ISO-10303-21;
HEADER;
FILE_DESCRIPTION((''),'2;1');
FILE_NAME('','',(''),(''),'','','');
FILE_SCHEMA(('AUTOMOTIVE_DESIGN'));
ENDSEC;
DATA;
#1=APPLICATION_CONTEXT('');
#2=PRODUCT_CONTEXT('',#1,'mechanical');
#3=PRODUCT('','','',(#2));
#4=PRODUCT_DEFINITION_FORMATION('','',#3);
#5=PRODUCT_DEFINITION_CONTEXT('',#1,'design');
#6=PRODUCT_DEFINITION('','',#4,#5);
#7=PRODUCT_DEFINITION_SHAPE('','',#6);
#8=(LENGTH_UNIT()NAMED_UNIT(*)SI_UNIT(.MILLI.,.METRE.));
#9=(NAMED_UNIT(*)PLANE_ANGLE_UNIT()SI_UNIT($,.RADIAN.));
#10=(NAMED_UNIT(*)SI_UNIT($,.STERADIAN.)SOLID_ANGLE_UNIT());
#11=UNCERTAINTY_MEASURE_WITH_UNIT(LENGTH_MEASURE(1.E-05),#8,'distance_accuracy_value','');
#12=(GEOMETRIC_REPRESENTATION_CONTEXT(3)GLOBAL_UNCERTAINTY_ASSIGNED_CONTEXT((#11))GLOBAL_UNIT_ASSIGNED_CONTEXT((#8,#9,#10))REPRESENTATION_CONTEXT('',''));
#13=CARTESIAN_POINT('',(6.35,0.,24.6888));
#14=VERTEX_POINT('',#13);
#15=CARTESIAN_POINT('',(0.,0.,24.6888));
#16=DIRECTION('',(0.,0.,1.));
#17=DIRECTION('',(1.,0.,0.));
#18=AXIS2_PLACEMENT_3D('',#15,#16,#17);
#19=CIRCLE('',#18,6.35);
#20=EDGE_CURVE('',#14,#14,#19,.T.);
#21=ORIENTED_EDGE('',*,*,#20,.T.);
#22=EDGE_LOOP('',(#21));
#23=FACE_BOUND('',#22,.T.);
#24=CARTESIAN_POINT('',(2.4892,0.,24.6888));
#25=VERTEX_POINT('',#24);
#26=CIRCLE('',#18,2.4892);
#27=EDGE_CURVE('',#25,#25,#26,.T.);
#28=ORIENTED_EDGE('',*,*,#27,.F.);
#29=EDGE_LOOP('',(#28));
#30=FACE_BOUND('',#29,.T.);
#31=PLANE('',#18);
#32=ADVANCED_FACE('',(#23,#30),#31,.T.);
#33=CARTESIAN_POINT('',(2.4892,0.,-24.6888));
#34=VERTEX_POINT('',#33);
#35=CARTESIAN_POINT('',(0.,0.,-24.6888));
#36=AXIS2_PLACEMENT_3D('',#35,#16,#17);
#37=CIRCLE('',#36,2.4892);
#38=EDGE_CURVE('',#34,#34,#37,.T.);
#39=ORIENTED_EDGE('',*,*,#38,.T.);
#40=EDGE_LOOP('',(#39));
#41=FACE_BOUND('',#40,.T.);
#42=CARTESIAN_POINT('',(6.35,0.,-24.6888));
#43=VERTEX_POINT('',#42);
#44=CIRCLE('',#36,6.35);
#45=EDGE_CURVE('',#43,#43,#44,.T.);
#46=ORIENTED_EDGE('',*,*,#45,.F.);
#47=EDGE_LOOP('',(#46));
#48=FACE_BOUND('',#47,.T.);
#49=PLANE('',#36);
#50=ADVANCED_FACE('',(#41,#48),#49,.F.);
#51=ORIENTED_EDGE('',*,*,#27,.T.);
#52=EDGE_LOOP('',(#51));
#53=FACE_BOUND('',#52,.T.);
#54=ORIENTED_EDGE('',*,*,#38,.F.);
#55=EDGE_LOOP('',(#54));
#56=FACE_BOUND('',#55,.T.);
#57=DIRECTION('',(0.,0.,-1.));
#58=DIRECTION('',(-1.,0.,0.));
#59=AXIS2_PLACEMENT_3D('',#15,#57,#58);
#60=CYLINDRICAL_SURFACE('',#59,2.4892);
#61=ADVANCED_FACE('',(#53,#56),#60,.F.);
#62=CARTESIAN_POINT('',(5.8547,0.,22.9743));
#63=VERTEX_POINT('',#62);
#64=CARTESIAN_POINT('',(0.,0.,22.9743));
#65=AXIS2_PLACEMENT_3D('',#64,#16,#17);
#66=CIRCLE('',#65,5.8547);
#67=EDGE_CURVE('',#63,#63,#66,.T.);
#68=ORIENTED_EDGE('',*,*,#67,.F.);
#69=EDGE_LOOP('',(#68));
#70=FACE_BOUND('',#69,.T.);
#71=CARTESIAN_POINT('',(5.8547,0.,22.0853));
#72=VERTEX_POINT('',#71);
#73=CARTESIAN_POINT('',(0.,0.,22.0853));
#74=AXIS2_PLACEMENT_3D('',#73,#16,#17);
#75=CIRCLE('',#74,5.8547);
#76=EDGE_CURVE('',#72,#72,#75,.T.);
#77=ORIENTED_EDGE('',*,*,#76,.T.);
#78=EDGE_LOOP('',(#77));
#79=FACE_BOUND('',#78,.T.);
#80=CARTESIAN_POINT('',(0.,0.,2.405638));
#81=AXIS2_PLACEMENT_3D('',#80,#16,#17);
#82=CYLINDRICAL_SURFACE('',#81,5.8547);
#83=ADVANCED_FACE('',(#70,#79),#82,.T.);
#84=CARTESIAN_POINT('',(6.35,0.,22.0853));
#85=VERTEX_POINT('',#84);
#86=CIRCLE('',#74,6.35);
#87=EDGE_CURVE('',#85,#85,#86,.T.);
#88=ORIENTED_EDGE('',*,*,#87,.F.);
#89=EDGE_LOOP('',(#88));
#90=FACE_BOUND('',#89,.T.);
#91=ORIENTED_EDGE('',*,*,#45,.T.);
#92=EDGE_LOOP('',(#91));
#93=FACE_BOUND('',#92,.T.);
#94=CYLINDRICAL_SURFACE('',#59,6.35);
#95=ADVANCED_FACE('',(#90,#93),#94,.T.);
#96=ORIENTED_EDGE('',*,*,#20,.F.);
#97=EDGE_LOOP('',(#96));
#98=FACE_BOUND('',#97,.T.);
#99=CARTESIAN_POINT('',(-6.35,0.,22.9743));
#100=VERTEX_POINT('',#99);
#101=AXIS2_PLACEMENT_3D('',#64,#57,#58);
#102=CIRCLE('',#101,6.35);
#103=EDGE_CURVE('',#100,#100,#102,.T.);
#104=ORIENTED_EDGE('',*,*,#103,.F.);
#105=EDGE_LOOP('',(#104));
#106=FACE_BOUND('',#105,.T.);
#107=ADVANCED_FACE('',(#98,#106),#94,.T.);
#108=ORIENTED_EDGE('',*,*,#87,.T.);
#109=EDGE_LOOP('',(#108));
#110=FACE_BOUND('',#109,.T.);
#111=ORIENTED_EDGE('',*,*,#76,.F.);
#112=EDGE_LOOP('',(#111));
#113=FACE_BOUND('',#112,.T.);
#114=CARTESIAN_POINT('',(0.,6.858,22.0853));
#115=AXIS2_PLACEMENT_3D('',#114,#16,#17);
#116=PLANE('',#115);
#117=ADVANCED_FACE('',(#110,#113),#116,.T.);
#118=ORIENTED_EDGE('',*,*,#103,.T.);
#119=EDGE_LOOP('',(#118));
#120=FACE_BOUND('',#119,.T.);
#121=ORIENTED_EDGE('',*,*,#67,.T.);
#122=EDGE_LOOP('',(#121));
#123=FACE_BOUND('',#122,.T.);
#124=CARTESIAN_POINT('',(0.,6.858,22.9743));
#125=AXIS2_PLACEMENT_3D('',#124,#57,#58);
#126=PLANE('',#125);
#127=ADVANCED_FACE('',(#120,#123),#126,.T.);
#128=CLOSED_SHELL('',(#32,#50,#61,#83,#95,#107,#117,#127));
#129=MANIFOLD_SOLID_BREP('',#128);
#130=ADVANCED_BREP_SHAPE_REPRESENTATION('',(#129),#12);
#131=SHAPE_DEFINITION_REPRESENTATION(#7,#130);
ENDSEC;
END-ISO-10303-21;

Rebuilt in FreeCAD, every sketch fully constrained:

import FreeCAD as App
import Part
import Sketcher
from FreeCAD import Vector
Q = App.Units.Quantity

doc = App.newDocument("Part")
body = doc.addObject("PartDesign::Body", "Body")

sketch1 = body.newObject("Sketcher::SketchObject", "Sketch")
sketch1.AttachmentSupport = (doc.getObject("XY_Plane"), [""])
sketch1.MapMode = "FlatFace"
sketch1.addGeometry(Part.Circle(Vector(0, 0, 0), Vector(0, 0, 1), 6.35), False)
sketch1.addGeometry(Part.Circle(Vector(0, 0, 0), Vector(0, 0, 1), 2.4892), False)
sketch1.addConstraint(Sketcher.Constraint("Coincident", 0, 3, -1, 1))
sketch1.addConstraint(Sketcher.Constraint("Coincident", 1, 3, -1, 1))
sketch1.addConstraint(Sketcher.Constraint("Diameter", 0, Q("0.5 in")))
sketch1.addConstraint(Sketcher.Constraint("Diameter", 1, Q("0.196 in")))
pad1 = body.newObject("PartDesign::Pad", "Pad")
pad1.Profile = sketch1
pad1.Length = Q("1.944 in")
pad1.Midplane = True

sketch2 = body.newObject("Sketcher::SketchObject", "Sketch001")
sketch2.AttachmentSupport = (doc.getObject("YZ_Plane"), [""])
sketch2.MapMode = "FlatFace"
sketch2.addGeometry(Part.LineSegment(Vector(6.858, 22.9743, 0), Vector(5.8547, 22.9743, 0)), False)
sketch2.addGeometry(Part.LineSegment(Vector(5.8547, 22.9743, 0), Vector(5.8547, 22.0853, 0)), False)
sketch2.addGeometry(Part.LineSegment(Vector(5.8547, 22.0853, 0), Vector(6.858, 22.0853, 0)), False)
sketch2.addGeometry(Part.LineSegment(Vector(6.858, 22.0853, 0), Vector(6.858, 22.9743, 0)), False)
sketch2.addConstraint(Sketcher.Constraint("Coincident", 0, 2, 1, 1))
sketch2.addConstraint(Sketcher.Constraint("Coincident", 1, 2, 2, 1))
sketch2.addConstraint(Sketcher.Constraint("Coincident", 2, 2, 3, 1))
sketch2.addConstraint(Sketcher.Constraint("Coincident", 3, 2, 0, 1))
sketch2.addConstraint(Sketcher.Constraint("Horizontal", 0))
sketch2.addConstraint(Sketcher.Constraint("Vertical", 1))
sketch2.addConstraint(Sketcher.Constraint("Horizontal", 2))
sketch2.addConstraint(Sketcher.Constraint("Vertical", 3))
sketch2.addConstraint(Sketcher.Constraint("DistanceY", 1, 2, 1, 1, Q("0.035 in")))
sketch2.addConstraint(Sketcher.Constraint("DistanceX", -1, 1, 2, 2, Q("0.27 in")))
sketch2.addConstraint(Sketcher.Constraint("DistanceX", 0, 2, 0, 1, Q("0.0395 in")))
sketch2.addConstraint(Sketcher.Constraint("DistanceY", -1, 1, 0, 2, Q("0.9045 in")))
groove = body.newObject("PartDesign::Groove", "Groove")
groove.Profile = sketch2
groove.ReferenceAxis = (sketch2, ["V_Axis"])
groove.Angle = 360

doc.recompute()
